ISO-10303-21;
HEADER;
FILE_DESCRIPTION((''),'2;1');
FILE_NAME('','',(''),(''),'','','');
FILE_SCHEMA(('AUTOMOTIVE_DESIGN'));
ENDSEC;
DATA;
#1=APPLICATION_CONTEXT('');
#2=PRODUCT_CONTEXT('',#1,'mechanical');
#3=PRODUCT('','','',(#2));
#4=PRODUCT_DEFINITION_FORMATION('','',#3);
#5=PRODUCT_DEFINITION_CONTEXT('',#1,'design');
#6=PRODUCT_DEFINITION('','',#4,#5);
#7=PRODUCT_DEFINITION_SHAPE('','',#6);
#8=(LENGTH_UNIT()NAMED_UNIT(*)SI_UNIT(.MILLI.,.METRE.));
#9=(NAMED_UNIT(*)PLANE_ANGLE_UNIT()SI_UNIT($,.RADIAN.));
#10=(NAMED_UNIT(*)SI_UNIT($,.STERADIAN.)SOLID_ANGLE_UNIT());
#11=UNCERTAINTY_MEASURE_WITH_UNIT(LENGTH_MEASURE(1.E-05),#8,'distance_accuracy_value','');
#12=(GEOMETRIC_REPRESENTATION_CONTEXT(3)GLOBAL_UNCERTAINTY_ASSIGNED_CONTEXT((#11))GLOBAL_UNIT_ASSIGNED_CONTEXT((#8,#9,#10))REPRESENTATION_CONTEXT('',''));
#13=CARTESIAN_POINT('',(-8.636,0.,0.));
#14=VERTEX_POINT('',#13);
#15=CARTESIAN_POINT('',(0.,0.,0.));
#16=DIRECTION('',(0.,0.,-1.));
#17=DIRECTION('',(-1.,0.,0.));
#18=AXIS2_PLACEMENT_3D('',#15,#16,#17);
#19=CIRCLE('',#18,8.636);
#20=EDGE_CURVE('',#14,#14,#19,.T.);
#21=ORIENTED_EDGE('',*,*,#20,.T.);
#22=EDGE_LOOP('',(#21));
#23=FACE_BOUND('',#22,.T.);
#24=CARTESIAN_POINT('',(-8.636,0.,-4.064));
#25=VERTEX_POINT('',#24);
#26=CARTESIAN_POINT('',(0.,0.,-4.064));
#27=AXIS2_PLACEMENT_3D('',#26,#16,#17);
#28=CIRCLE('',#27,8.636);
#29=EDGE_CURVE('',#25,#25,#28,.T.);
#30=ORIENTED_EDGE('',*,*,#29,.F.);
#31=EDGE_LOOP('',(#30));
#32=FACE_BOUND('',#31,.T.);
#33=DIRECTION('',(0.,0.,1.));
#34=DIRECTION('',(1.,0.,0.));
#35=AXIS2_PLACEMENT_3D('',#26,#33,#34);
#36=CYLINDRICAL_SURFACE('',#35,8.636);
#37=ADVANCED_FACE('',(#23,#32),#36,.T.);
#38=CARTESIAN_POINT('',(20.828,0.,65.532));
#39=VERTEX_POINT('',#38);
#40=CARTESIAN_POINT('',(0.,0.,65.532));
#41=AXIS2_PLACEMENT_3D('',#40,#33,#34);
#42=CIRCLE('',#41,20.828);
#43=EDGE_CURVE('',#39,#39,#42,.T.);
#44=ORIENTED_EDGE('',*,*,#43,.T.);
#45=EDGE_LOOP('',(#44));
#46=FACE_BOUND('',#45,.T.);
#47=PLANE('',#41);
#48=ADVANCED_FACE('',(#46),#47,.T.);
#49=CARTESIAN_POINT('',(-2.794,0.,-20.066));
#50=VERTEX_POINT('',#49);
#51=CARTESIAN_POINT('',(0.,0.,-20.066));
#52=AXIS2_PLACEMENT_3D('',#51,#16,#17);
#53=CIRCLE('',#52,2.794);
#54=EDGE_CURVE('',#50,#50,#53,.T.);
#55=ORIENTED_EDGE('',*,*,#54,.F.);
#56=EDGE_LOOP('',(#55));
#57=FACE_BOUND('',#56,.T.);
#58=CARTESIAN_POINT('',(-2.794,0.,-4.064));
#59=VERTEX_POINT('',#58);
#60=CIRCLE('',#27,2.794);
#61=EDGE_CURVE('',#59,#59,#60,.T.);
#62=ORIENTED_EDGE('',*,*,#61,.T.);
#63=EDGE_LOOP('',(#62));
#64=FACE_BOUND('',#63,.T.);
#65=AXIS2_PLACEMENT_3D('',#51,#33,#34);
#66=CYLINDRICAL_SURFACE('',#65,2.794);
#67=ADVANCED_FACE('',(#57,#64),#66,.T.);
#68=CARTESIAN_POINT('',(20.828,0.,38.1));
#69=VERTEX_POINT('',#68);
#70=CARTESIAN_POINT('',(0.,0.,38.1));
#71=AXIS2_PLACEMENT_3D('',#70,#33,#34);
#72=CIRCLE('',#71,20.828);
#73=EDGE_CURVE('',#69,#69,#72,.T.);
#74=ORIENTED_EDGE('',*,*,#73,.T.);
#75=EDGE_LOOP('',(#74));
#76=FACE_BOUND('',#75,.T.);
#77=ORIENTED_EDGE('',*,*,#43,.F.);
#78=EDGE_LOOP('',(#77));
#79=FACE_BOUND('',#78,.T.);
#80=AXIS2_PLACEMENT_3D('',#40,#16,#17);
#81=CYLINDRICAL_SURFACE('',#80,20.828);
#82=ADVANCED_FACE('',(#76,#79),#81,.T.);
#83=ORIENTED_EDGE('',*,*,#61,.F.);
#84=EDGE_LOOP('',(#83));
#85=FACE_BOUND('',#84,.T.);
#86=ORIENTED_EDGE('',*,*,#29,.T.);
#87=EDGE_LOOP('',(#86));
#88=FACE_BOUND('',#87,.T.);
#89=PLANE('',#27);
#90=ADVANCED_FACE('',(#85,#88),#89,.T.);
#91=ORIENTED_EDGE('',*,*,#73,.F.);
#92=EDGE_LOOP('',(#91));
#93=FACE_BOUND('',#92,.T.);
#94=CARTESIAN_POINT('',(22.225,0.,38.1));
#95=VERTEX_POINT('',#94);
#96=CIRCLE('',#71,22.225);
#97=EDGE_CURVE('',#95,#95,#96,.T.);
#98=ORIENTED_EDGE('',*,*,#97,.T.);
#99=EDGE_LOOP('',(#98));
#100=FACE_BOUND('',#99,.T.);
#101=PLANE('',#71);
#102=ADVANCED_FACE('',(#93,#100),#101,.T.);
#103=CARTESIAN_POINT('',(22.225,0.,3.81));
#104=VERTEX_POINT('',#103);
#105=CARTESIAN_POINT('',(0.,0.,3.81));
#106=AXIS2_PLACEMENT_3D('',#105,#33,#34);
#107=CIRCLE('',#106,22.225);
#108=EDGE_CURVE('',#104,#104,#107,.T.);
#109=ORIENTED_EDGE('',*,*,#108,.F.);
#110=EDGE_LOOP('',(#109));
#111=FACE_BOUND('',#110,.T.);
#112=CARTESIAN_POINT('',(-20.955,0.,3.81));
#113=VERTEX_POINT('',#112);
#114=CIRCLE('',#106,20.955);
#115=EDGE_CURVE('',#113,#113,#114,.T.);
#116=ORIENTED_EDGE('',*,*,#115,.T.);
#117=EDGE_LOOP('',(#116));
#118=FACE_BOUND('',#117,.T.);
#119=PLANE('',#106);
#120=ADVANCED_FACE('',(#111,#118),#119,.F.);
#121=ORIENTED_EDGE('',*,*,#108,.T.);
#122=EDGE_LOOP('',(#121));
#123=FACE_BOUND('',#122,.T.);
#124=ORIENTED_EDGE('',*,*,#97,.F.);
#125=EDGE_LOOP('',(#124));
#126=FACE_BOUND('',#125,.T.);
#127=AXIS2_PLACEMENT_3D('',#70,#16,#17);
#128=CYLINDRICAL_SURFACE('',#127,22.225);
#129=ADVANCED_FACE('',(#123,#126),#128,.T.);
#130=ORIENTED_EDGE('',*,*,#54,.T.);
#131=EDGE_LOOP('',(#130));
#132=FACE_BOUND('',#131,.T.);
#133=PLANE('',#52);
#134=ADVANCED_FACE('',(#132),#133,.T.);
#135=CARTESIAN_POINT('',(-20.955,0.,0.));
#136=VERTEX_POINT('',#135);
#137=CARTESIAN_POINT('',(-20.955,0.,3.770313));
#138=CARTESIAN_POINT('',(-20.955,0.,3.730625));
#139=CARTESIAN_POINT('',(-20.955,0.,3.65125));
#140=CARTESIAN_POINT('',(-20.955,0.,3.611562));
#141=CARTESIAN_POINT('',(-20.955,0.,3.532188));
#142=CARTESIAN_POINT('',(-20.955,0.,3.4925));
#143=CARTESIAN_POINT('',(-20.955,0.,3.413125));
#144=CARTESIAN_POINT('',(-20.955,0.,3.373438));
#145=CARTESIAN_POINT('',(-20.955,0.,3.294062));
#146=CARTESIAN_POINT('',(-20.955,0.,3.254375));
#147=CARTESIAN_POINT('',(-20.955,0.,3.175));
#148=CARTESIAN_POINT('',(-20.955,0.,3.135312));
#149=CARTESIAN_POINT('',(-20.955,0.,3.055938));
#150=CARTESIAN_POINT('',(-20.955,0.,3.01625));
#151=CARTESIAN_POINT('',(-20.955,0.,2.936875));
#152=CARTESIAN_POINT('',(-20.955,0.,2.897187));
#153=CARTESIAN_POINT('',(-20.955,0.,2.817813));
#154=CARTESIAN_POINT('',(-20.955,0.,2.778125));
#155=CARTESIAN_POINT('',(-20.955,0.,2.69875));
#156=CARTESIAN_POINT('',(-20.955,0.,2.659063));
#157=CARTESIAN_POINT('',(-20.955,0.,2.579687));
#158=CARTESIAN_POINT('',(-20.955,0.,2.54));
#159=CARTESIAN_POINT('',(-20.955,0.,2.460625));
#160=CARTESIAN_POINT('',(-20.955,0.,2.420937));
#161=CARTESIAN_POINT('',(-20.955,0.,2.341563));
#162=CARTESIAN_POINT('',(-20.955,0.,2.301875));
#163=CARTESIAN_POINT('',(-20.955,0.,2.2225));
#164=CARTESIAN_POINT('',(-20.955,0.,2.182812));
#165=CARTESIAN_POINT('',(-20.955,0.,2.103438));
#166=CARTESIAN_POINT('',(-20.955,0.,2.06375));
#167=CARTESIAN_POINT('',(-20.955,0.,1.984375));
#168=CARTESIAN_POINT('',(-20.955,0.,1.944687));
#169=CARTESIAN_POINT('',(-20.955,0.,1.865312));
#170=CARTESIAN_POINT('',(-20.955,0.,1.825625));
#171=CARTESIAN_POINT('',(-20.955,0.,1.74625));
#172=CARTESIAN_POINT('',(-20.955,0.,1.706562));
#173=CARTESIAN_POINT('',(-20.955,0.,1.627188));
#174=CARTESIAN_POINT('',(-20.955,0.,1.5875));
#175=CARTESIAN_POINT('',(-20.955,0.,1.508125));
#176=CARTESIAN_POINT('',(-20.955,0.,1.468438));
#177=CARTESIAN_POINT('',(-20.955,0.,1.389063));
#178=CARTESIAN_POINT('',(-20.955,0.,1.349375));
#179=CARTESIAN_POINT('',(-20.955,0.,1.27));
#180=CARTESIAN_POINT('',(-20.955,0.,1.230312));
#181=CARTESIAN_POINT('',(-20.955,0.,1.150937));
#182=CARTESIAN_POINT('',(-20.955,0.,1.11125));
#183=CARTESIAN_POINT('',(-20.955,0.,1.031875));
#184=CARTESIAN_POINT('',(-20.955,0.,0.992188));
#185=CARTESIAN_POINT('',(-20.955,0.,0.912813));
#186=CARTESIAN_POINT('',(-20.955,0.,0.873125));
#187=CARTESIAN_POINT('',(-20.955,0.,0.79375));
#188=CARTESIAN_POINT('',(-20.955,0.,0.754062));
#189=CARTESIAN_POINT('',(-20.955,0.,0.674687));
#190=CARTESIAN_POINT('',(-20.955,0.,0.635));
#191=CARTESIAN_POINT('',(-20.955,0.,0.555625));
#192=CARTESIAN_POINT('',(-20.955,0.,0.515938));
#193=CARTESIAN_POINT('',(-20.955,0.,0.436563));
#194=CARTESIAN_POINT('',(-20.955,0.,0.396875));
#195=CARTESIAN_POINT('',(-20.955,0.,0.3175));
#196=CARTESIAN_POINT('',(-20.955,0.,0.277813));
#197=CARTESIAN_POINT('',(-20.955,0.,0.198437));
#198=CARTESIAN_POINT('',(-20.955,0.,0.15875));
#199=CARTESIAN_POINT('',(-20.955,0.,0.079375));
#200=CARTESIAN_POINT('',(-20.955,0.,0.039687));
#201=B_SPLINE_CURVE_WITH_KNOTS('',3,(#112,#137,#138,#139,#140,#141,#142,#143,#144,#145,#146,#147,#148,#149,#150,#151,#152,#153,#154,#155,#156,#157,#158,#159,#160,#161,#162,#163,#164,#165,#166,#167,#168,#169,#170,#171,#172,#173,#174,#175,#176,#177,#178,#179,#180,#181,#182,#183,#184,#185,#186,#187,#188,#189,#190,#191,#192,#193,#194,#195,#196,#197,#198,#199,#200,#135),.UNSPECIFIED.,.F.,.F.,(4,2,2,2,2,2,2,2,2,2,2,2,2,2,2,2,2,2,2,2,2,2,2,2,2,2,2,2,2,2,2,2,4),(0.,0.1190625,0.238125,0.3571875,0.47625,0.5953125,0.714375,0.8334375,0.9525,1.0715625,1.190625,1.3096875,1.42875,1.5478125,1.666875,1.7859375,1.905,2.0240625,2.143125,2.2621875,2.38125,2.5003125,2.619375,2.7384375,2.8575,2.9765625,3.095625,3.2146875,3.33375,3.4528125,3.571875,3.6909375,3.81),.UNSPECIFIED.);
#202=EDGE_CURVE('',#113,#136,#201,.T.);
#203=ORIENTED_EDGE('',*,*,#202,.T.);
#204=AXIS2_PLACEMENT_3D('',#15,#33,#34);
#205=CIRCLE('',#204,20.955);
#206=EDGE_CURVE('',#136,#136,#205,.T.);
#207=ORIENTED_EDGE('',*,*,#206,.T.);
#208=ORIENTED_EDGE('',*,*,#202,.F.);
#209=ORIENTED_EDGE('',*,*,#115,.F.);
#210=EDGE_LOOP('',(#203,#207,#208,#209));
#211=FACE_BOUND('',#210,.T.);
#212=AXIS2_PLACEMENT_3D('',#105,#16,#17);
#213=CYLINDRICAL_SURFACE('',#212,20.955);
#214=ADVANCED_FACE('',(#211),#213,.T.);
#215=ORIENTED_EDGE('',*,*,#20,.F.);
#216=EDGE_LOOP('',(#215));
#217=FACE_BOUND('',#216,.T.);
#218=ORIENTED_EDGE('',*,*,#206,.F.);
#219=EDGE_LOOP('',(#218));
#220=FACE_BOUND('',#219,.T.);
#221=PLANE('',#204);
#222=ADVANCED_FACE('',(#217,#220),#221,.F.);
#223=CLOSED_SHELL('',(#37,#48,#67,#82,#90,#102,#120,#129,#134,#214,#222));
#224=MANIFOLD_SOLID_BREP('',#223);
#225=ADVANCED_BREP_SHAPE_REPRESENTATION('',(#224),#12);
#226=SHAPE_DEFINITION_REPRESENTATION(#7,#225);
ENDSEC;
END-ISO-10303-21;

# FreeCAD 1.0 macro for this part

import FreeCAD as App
import Part
import Sketcher
Q = App.Units.Quantity

doc = App.newDocument("Part")
params = doc.addObject("Spreadsheet::Sheet", "Params")
for row, (alias, value) in enumerate([
    ("sketch1_diameter", "1.65 in"),
    ("pad1_length", "0.15 in"),
    ("sketch2_diameter", "1.75 in"),
    ("pad2_length", "1.35 in"),
    ("sketch3_diameter", "1.64 in"),
    ("pad3_length", "1.08 in"),
    ("sketch4_diameter", "0.68 in"),
    ("pad4_length", "0.16 in"),
    ("sketch5_diameter", "0.22 in"),
    ("pad5_length", "0.63 in"),
], start=1):
    params.set(f"A{row}", alias)
    params.set(f"B{row}", "=" + value)
    params.setAlias(f"B{row}", alias)

body = doc.addObject("PartDesign::Body", "Body")

# Sketch on XY plane
sketch1 = body.newObject("Sketcher::SketchObject", "Sketch")
sketch1.AttachmentSupport = (doc.getObject("XY_Plane"), [""])
sketch1.MapMode = "FlatFace"
sketch1.addGeometry(Part.Circle(App.Vector(0, 0, 0), App.Vector(0, 0, 1), 21), False)
sketch1.addConstraint(Sketcher.Constraint("Coincident", 0, 3, -1, 1))
sketch1.addConstraint(Sketcher.Constraint("Diameter", 0, Q("1.65 in")))
sketch1.setExpression("Constraints[1]", "Params.sketch1_diameter")
pad1 = body.newObject("PartDesign::Pad", "Pad")
pad1.Profile = sketch1
pad1.setExpression("Length", "Params.pad1_length")

# Sketch on XY plane
sketch2 = body.newObject("Sketcher::SketchObject", "Sketch001")
sketch2.AttachmentSupport = (doc.getObject("XY_Plane"), [""])
sketch2.MapMode = "FlatFace"
sketch2.AttachmentOffset = App.Placement(App.Vector(0, 0, 0.15 * 25.4), App.Rotation())
sketch2.addGeometry(Part.Circle(App.Vector(0, 0, 0), App.Vector(0, 0, 1), 22), False)
sketch2.addConstraint(Sketcher.Constraint("Coincident", 0, 3, -1, 1))
sketch2.addConstraint(Sketcher.Constraint("Diameter", 0, Q("1.75 in")))
sketch2.setExpression("Constraints[1]", "Params.sketch2_diameter")
pad2 = body.newObject("PartDesign::Pad", "Pad001")
pad2.Profile = sketch2
pad2.setExpression("Length", "Params.pad2_length")

# Sketch on XY plane
sketch3 = body.newObject("Sketcher::SketchObject", "Sketch002")
sketch3.AttachmentSupport = (doc.getObject("XY_Plane"), [""])
sketch3.MapMode = "FlatFace"
sketch3.AttachmentOffset = App.Placement(App.Vector(0, 0, 1.5 * 25.4), App.Rotation())
sketch3.addGeometry(Part.Circle(App.Vector(0, 0, 0), App.Vector(0, 0, 1), 21), False)
sketch3.addConstraint(Sketcher.Constraint("Coincident", 0, 3, -1, 1))
sketch3.addConstraint(Sketcher.Constraint("Diameter", 0, Q("1.64 in")))
sketch3.setExpression("Constraints[1]", "Params.sketch3_diameter")
pad3 = body.newObject("PartDesign::Pad", "Pad002")
pad3.Profile = sketch3
pad3.setExpression("Length", "Params.pad3_length")

# Sketch on XY plane
sketch4 = body.newObject("Sketcher::SketchObject", "Sketch003")
sketch4.AttachmentSupport = (doc.getObject("XY_Plane"), [""])
sketch4.MapMode = "FlatFace"
sketch4.addGeometry(Part.Circle(App.Vector(0, 0, 0), App.Vector(0, 0, 1), 9), False)
sketch4.addConstraint(Sketcher.Constraint("Coincident", 0, 3, -1, 1))
sketch4.addConstraint(Sketcher.Constraint("Diameter", 0, Q("0.68 in")))
sketch4.setExpression("Constraints[1]", "Params.sketch4_diameter")
pad4 = body.newObject("PartDesign::Pad", "Pad003")
pad4.Profile = sketch4
pad4.setExpression("Length", "Params.pad4_length")
pad4.Reversed = True

# Sketch on XY plane
sketch5 = body.newObject("Sketcher::SketchObject", "Sketch004")
sketch5.AttachmentSupport = (doc.getObject("XY_Plane"), [""])
sketch5.MapMode = "FlatFace"
sketch5.AttachmentOffset = App.Placement(App.Vector(0, 0, -0.16 * 25.4), App.Rotation())
sketch5.addGeometry(Part.Circle(App.Vector(0, 0, 0), App.Vector(0, 0, 1), 2.8), False)
sketch5.addConstraint(Sketcher.Constraint("Coincident", 0, 3, -1, 1))
sketch5.addConstraint(Sketcher.Constraint("Diameter", 0, Q("0.22 in")))
sketch5.setExpression("Constraints[1]", "Params.sketch5_diameter")
pad5 = body.newObject("PartDesign::Pad", "Pad004")
pad5.Profile = sketch5
pad5.setExpression("Length", "Params.pad5_length")
pad5.Reversed = True

doc.recompute()
